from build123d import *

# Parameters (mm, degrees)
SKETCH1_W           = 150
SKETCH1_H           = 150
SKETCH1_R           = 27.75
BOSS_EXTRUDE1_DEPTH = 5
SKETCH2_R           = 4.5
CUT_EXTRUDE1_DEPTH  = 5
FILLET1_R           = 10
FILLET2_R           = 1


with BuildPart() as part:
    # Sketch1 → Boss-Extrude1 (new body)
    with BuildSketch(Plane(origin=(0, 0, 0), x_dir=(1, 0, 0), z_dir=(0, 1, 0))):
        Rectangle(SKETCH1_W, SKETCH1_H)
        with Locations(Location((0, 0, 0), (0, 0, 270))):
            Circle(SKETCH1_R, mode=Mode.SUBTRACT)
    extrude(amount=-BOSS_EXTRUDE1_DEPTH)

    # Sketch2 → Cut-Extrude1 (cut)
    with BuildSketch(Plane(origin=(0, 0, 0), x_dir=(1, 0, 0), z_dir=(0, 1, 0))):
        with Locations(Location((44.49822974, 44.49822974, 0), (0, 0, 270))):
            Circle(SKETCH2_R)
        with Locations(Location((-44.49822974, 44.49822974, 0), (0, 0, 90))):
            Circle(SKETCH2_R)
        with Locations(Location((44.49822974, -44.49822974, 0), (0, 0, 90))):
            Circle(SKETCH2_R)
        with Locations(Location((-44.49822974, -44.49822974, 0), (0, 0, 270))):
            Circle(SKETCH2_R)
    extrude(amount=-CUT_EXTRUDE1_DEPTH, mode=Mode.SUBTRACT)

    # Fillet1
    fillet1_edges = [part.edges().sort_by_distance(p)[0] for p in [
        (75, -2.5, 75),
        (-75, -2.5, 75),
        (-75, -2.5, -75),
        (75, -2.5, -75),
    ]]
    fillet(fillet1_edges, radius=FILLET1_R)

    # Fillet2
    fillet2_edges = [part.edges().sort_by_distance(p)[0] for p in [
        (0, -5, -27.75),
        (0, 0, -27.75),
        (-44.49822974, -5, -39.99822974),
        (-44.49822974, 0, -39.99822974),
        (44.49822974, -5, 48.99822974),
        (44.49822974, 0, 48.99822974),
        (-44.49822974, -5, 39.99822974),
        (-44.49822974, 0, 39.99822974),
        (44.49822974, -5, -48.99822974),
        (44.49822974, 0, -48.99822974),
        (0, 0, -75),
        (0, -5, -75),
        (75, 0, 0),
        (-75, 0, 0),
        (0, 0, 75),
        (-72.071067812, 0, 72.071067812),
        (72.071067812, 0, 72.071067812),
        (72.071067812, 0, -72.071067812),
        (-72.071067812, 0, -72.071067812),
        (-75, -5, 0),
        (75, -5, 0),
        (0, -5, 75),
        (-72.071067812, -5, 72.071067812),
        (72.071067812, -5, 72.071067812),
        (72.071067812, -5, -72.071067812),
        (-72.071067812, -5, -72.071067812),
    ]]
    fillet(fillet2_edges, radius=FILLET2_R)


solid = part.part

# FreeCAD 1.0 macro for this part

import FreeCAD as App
import Part
import Sketcher


def edges_at(feature, points):
    """Names of the edges that pass closest to the given points."""
    edges = feature.Shape.Edges
    near = lambda p: min(range(len(edges)), key=lambda i: edges[i].distToShape(Part.Vertex(*p))[0])
    return sorted({f"Edge{near(p) + 1}" for p in points})


def add_polygon(sketch, points):
    """Adds a closed chain of lines whose ends are joined by coincident constraints."""
    first, n = sketch.GeometryCount, len(points)
    for a, b in zip(points, points[1:] + points[:1]):
        sketch.addGeometry(Part.LineSegment(App.Vector(*a, 0), App.Vector(*b, 0)), False)
    for i in range(n):
        sketch.addConstraint(Sketcher.Constraint("Coincident", first + i, 2, first + (i + 1) % n, 1))

doc = App.newDocument("Part")
body = doc.addObject("PartDesign::Body", "Body")

# Sketch on XZ plane
sketch1 = doc.addObject("Sketcher::SketchObject", "Sketch")
body.addObject(sketch1)
sketch1.AttachmentSupport = (doc.XZ_Plane, [""])
sketch1.MapMode = "FlatFace"
add_polygon(sketch1, [(-75, -75), (-75, 75), (75, 75), (75, -75)])  # lines 0-3
sketch1.addGeometry(Part.Circle(App.Vector(0, 0, 0), App.Vector(0, 0, 1), 27.75), False)  # 4
sketch1.addConstraint(Sketcher.Constraint("Vertical", 0))
sketch1.addConstraint(Sketcher.Constraint("Horizontal", 1))
sketch1.addConstraint(Sketcher.Constraint("Vertical", 2))
sketch1.addConstraint(Sketcher.Constraint("Horizontal", 3))
sketch1.addConstraint(Sketcher.Constraint("Coincident", 4, 3, -1, 1))
sketch1.addConstraint(Sketcher.Constraint("Symmetric", 0, 2, 2, 2, -1, 1))
sketch1.addConstraint(Sketcher.Constraint("Equal", 3, 0))
sketch1.addConstraint(Sketcher.Constraint("Diameter", 4, 55.5))
sketch1.addConstraint(Sketcher.Constraint("DistanceX", 1, 1, 1, 2, 150.0))
pad1 = doc.addObject("PartDesign::Pad", "Pad")
body.addObject(pad1)
pad1.Profile = sketch1
pad1.Length = 5

# Sketch on XZ plane
sketch2 = doc.addObject("Sketcher::SketchObject", "Sketch001")
body.addObject(sketch2)
sketch2.AttachmentSupport = (doc.XZ_Plane, [""])
sketch2.MapMode = "FlatFace"
sketch2.addGeometry(Part.Circle(App.Vector(44.49823, -44.49823, 0), App.Vector(0, 0, 1), 4.5), False)
sketch2.addGeometry(Part.Circle(App.Vector(-44.49823, -44.49823, 0), App.Vector(0, 0, 1), 4.5), False)
sketch2.addGeometry(Part.Circle(App.Vector(44.49823, 44.49823, 0), App.Vector(0, 0, 1), 4.5), False)
sketch2.addGeometry(Part.Circle(App.Vector(-44.49823, 44.49823, 0), App.Vector(0, 0, 1), 4.5), False)
sketch2.addConstraint(Sketcher.Constraint("Equal", 0, 1))
sketch2.addConstraint(Sketcher.Constraint("Equal", 1, 2))
sketch2.addConstraint(Sketcher.Constraint("Equal", 2, 3))
sketch2.addConstraint(Sketcher.Constraint("Symmetric", 1, 3, 2, 3, -1, 1))
sketch2.addConstraint(Sketcher.Constraint("Symmetric", 0, 3, 3, 3, -1, 1))
sketch2.addConstraint(Sketcher.Constraint("Symmetric", 0, 3, 1, 3, -2))
sketch2.addConstraint(Sketcher.Constraint("Diameter", 0, 9.0))
sketch2.addConstraint(Sketcher.Constraint("DistanceX", -1, 1, 0, 3, 44.49823))
sketch2.addConstraint(Sketcher.Constraint("DistanceY", 0, 3, -1, 1, 44.49823))
pocket1 = doc.addObject("PartDesign::Pocket", "Pocket")
body.addObject(pocket1)
pocket1.Profile = sketch2
pocket1.Length = 5
pocket1.Reversed = True
doc.recompute()

fillet = doc.addObject("PartDesign::Fillet", "Fillet")
body.addObject(fillet)
fillet.Base = (pocket1, edges_at(pocket1, [
    (75, -2.5, 75),
    (-75, -2.5, 75),
    (-75, -2.5, -75),
    (75, -2.5, -75),
]))
fillet.Radius = 10
doc.recompute()

fillet2 = doc.addObject("PartDesign::Fillet", "Fillet001")
body.addObject(fillet2)
fillet2.Base = (fillet, edges_at(fillet, [
    (0, -5, -27.75),
    (0, 0, -27.75),
    (-44.498, -5, -39.998),
    (-44.498, 0, -39.998),
    (44.498, -5, 48.998),
    (44.498, 0, 48.998),
    (-44.498, -5, 39.998),
    (-44.498, 0, 39.998),
    (44.498, -5, -48.998),
    (44.498, 0, -48.998),
    (0, 0, -75),
    (0, -5, -75),
    (75, 0, 0),
    (-75, 0, 0),
    (0, 0, 75),
    (-72.071, 0, 72.071),
    (72.071, 0, 72.071),
    (72.071, 0, -72.071),
    (-72.071, 0, -72.071),
    (-75, -5, 0),
    (75, -5, 0),
    (0, -5, 75),
    (-72.071, -5, 72.071),
    (72.071, -5, 72.071),
    (72.071, -5, -72.071),
    (-72.071, -5, -72.071),
]))
fillet2.Radius = 1

doc.recompute()
